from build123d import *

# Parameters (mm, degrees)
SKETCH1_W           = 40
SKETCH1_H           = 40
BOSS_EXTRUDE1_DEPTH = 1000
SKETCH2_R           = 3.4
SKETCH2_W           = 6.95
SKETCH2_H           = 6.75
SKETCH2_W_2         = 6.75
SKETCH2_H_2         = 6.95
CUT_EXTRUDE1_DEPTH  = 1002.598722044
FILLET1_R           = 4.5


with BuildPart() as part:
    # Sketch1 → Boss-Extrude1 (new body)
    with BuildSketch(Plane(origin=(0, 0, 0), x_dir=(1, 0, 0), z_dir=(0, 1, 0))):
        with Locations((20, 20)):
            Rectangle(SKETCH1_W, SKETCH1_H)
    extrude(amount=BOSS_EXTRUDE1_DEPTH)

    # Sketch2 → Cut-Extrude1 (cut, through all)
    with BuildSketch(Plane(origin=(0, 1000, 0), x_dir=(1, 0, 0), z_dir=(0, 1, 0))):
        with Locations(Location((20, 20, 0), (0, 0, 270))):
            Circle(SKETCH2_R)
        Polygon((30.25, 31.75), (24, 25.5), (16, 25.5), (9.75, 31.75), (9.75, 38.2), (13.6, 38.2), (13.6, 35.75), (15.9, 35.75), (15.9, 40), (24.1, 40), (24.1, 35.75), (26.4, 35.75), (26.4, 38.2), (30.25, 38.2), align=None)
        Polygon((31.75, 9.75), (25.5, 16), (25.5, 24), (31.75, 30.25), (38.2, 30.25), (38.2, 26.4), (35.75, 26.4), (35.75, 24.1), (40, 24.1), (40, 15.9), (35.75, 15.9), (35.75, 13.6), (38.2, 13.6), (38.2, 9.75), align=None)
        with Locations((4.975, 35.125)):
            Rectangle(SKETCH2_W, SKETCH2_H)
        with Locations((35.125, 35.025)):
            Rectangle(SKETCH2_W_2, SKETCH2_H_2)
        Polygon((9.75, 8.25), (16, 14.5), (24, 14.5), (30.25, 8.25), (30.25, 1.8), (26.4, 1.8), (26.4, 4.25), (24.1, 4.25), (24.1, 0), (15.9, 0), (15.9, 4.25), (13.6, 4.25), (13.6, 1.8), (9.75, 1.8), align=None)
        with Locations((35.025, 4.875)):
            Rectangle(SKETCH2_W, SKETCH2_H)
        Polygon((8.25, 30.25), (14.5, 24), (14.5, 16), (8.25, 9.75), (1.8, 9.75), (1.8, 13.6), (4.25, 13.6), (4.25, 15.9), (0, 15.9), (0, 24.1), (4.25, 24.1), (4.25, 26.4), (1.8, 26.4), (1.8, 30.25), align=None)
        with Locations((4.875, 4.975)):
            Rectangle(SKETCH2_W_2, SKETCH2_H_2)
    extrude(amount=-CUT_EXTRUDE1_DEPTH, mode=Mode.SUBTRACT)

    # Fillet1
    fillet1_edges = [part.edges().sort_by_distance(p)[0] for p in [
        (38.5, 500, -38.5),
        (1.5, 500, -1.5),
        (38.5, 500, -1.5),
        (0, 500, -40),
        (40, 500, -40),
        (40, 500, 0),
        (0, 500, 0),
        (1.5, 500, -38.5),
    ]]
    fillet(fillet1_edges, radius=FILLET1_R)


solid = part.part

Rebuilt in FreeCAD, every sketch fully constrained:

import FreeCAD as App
import Part
import Sketcher


def edges_at(feature, points):
    """Names of the edges that pass closest to the given points."""
    edges = feature.Shape.Edges
    near = lambda p: min(range(len(edges)), key=lambda i: edges[i].distToShape(Part.Vertex(*p))[0])
    return sorted({f"Edge{near(p) + 1}" for p in points})


def add_polygon(sketch, points):
    """Adds a closed chain of lines whose ends are joined by coincident constraints."""
    first, n = sketch.GeometryCount, len(points)
    for a, b in zip(points, points[1:] + points[:1]):
        sketch.addGeometry(Part.LineSegment(App.Vector(*a, 0), App.Vector(*b, 0)), False)
    for i in range(n):
        sketch.addConstraint(Sketcher.Constraint("Coincident", first + i, 2, first + (i + 1) % n, 1))

doc = App.newDocument("Part")
body = doc.addObject("PartDesign::Body", "Body")

# Sketch on XZ plane
sketch1 = body.newObject("Sketcher::SketchObject", "Sketch")
sketch1.AttachmentSupport = (doc.getObject("XZ_Plane"), [""])
sketch1.MapMode = "FlatFace"
add_polygon(sketch1, [(0, -40), (0, 0), (40, 0), (40, -40)])  # lines 0-3
sketch1.addConstraint([
    Sketcher.Constraint("Vertical", 0),
    Sketcher.Constraint("Horizontal", 1),
    Sketcher.Constraint("Vertical", 2),
    Sketcher.Constraint("Horizontal", 3),
    Sketcher.Constraint("Coincident", 0, 2, -1, 1),
    Sketcher.Constraint("Equal", 3, 0),
    Sketcher.Constraint("DistanceX", 1, 1, 1, 2, 40.0),
])
pad1 = body.newObject("PartDesign::Pad", "Pad")
pad1.Profile = sketch1
pad1.Length = 1000
pad1.Reversed = True

# Sketch on XZ plane
sketch2 = body.newObject("Sketcher::SketchObject", "Sketch001")
sketch2.AttachmentSupport = (doc.getObject("XZ_Plane"), [""])
sketch2.MapMode = "FlatFace"
sketch2.AttachmentOffset = App.Placement(App.Vector(0, 0, -1000), App.Rotation())
sketch2.addGeometry(Part.Circle(App.Vector(20, -20, 0), App.Vector(0, 0, 1), 3.4), False)  # 0
add_polygon(sketch2, [(24, -25.5), (30.25, -31.75), (30.25, -38.2), (26.4, -38.2), (26.4, -35.75), (24.1, -35.75), (24.1, -40), (15.9, -40), (15.9, -35.75), (13.6, -35.75), (13.6, -38.2), (9.75, -38.2), (9.75, -31.75), (16, -25.5)])  # lines 1-14
add_polygon(sketch2, [(25.5, -16), (31.75, -9.75), (38.2, -9.75), (38.2, -13.6), (35.75, -13.6), (35.75, -15.9), (40, -15.9), (40, -24.1), (35.75, -24.1), (35.75, -26.4), (38.2, -26.4), (38.2, -30.25), (31.75, -30.25), (25.5, -24)])  # lines 15-28
add_polygon(sketch2, [(1.5, -38.5), (1.5, -31.75), (8.45, -31.75), (8.45, -38.5)])  # lines 29-32
add_polygon(sketch2, [(31.75, -38.5), (31.75, -31.55), (38.5, -31.55), (38.5, -38.5)])  # lines 33-36
add_polygon(sketch2, [(16, -14.5), (9.75, -8.25), (9.75, -1.8), (13.6, -1.8), (13.6, -4.25), (15.9, -4.25), (15.9, 0), (24.1, 0), (24.1, -4.25), (26.4, -4.25), (26.4, -1.8), (30.25, -1.8), (30.25, -8.25), (24, -14.5)])  # lines 37-50
add_polygon(sketch2, [(31.55, -8.25), (31.55, -1.5), (38.5, -1.5), (38.5, -8.25)])  # lines 51-54
add_polygon(sketch2, [(14.5, -24), (8.25, -30.25), (1.8, -30.25), (1.8, -26.4), (4.25, -26.4), (4.25, -24.1), (0, -24.1), (0, -15.9), (4.25, -15.9), (4.25, -13.6), (1.8, -13.6), (1.8, -9.75), (8.25, -9.75), (14.5, -16)])  # lines 55-68
add_polygon(sketch2, [(1.5, -8.45), (1.5, -1.5), (8.25, -1.5), (8.25, -8.45)])  # lines 69-72
sketch2.addConstraint([
    Sketcher.Constraint("Vertical", 2),
    Sketcher.Constraint("Horizontal", 3),
    Sketcher.Constraint("Vertical", 4),
    Sketcher.Constraint("Horizontal", 5),
    Sketcher.Constraint("Vertical", 6),
    Sketcher.Constraint("Horizontal", 7),
    Sketcher.Constraint("Vertical", 8),
    Sketcher.Constraint("Horizontal", 9),
    Sketcher.Constraint("Vertical", 10),
    Sketcher.Constraint("Horizontal", 11),
    Sketcher.Constraint("Vertical", 12),
    Sketcher.Constraint("Horizontal", 14),
    Sketcher.Constraint("Horizontal", 16),
    Sketcher.Constraint("Vertical", 17),
    Sketcher.Constraint("Horizontal", 18),
    Sketcher.Constraint("Vertical", 19),
    Sketcher.Constraint("Horizontal", 20),
    Sketcher.Constraint("Vertical", 21),
    Sketcher.Constraint("Horizontal", 22),
    Sketcher.Constraint("Vertical", 23),
    Sketcher.Constraint("Horizontal", 24),
    Sketcher.Constraint("Vertical", 25),
    Sketcher.Constraint("Horizontal", 26),
    Sketcher.Constraint("Vertical", 28),
    Sketcher.Constraint("Vertical", 29),
    Sketcher.Constraint("Horizontal", 30),
    Sketcher.Constraint("Vertical", 31),
    Sketcher.Constraint("Horizontal", 32),
    Sketcher.Constraint("Vertical", 33),
    Sketcher.Constraint("Horizontal", 34),
    Sketcher.Constraint("Vertical", 35),
    Sketcher.Constraint("Horizontal", 36),
    Sketcher.Constraint("Vertical", 38),
    Sketcher.Constraint("Horizontal", 39),
    Sketcher.Constraint("Vertical", 40),
    Sketcher.Constraint("Horizontal", 41),
    Sketcher.Constraint("Vertical", 42),
    Sketcher.Constraint("Horizontal", 43),
    Sketcher.Constraint("Vertical", 44),
    Sketcher.Constraint("Horizontal", 45),
    Sketcher.Constraint("Vertical", 46),
    Sketcher.Constraint("Horizontal", 47),
    Sketcher.Constraint("Vertical", 48),
    Sketcher.Constraint("Horizontal", 50),
    Sketcher.Constraint("Vertical", 51),
    Sketcher.Constraint("Horizontal", 52),
    Sketcher.Constraint("Vertical", 53),
    Sketcher.Constraint("Horizontal", 54),
    Sketcher.Constraint("Horizontal", 56),
    Sketcher.Constraint("Vertical", 57),
    Sketcher.Constraint("Horizontal", 58),
    Sketcher.Constraint("Vertical", 59),
    Sketcher.Constraint("Horizontal", 60),
    Sketcher.Constraint("Vertical", 61),
    Sketcher.Constraint("Horizontal", 62),
    Sketcher.Constraint("Vertical", 63),
    Sketcher.Constraint("Horizontal", 64),
    Sketcher.Constraint("Vertical", 65),
    Sketcher.Constraint("Horizontal", 66),
    Sketcher.Constraint("Vertical", 68),
    Sketcher.Constraint("Vertical", 69),
    Sketcher.Constraint("Horizontal", 70),
    Sketcher.Constraint("Vertical", 71),
    Sketcher.Constraint("Horizontal", 72),
    Sketcher.Constraint("PointOnObject", 42, 2, -1),
    Sketcher.Constraint("PointOnObject", 60, 2, -2),
    Sketcher.Constraint("Perpendicular", 1, 13),
    Sketcher.Constraint("Parallel", 13, 15),
    Sketcher.Constraint("Perpendicular", 15, 27),
    Sketcher.Constraint("Parallel", 27, 37),
    Sketcher.Constraint("Perpendicular", 37, 49),
    Sketcher.Constraint("Parallel", 49, 55),
    Sketcher.Constraint("Perpendicular", 55, 67),
    Sketcher.Constraint("Horizontal", 5, 2, 8, 2),
    Sketcher.Constraint("Horizontal", 3, 2, 10, 2),
    Sketcher.Constraint("Horizontal", 1, 2, 12, 2),
    Sketcher.Constraint("Horizontal", 12, 2, 29, 2),
    Sketcher.Constraint("Horizontal", 32, 2, 35, 2),
    Sketcher.Constraint("Horizontal", 41, 2, 44, 2),
    Sketcher.Constraint("Horizontal", 39, 2, 46, 2),
    Sketcher.Constraint("Horizontal", 37, 2, 48, 2),
    Sketcher.Constraint("Horizontal", 48, 2, 53, 2),
    Sketcher.Constraint("Horizontal", 26, 2, 55, 2),
    Sketcher.Constraint("Horizontal", 24, 2, 57, 2),
    Sketcher.Constraint("Horizontal", 22, 2, 59, 2),
    Sketcher.Constraint("Horizontal", 20, 2, 61, 2),
    Sketcher.Constraint("Horizontal", 18, 2, 63, 2),
    Sketcher.Constraint("Horizontal", 16, 2, 65, 2),
    Sketcher.Constraint("Horizontal", 28, 2, 67, 2),
    Sketcher.Constraint("Horizontal", 27, 2, 68, 2),
    Sketcher.Constraint("Horizontal", 52, 2, 69, 2),
    Sketcher.Constraint("Vertical", 19, 2, 22, 2),
    Sketcher.Constraint("Vertical", 17, 2, 24, 2),
    Sketcher.Constraint("Vertical", 15, 2, 26, 2),
    Sketcher.Constraint("Vertical", 26, 2, 33, 2),
    Sketcher.Constraint("Vertical", 12, 2, 37, 2),
    Sketcher.Constraint("Vertical", 10, 2, 39, 2),
    Sketcher.Constraint("Vertical", 8, 2, 41, 2),
    Sketcher.Constraint("Vertical", 6, 2, 43, 2),
    Sketcher.Constraint("Vertical", 4, 2, 45, 2),
    Sketcher.Constraint("Vertical", 2, 2, 47, 2),
    Sketcher.Constraint("Vertical", 14, 2, 49, 2),
    Sketcher.Constraint("Vertical", 13, 2, 50, 2),
    Sketcher.Constraint("Vertical", 35, 2, 52, 2),
    Sketcher.Constraint("Vertical", 59, 2, 62, 2),
    Sketcher.Constraint("Vertical", 57, 2, 64, 2),
    Sketcher.Constraint("Vertical", 32, 2, 69, 2),
    Sketcher.Constraint("Vertical", 66, 2, 70, 2),
    Sketcher.Constraint("Equal", 5, 9),
    Sketcher.Constraint("Equal", 3, 11),
    Sketcher.Constraint("Equal", 32, 52),
    Sketcher.Constraint("Equal", 26, 56),
    Sketcher.Constraint("Equal", 24, 58),
    Sketcher.Constraint("Equal", 22, 60),
    Sketcher.Constraint("Equal", 36, 70),
    Sketcher.Constraint("Equal", 66, 2),
    Sketcher.Constraint("Equal", 64, 4),
    Sketcher.Constraint("Equal", 62, 6),
    Sketcher.Constraint("Equal", 47, 17),
    Sketcher.Constraint("Equal", 45, 19),
    Sketcher.Constraint("Equal", 43, 21),
    Sketcher.Constraint("Equal", 19, 23),
    Sketcher.Constraint("Equal", 17, 25),
    Sketcher.Constraint("Equal", 50, 28),
    Sketcher.Constraint("Equal", 72, 29),
    Sketcher.Constraint("Equal", 54, 33),
    Sketcher.Constraint("Equal", 12, 38),
    Sketcher.Constraint("Equal", 10, 40),
    Sketcher.Constraint("Equal", 8, 42),
    Sketcher.Constraint("Equal", 31, 51),
    Sketcher.Constraint("Equal", 35, 69),
    Sketcher.Constraint("Diameter", 0, 6.8),
    Sketcher.Constraint("DistanceX", 14, 1, 14, 2, 8.0),
    Sketcher.Constraint("DistanceX", 5, 2, 5, 1, 2.3),
    Sketcher.Constraint("DistanceX", 7, 2, 7, 1, 8.2),
    Sketcher.Constraint("DistanceX", -1, 1, 0, 3, 20.0),
    Sketcher.Constraint("DistanceY", 0, 3, -1, 1, 20.0),
    Sketcher.Constraint("DistanceY", 6, 2, -1, 1, 40.0),
    Sketcher.Constraint("DistanceX", -1, 1, 13, 2, 16.0),
    Sketcher.Constraint("DistanceX", -1, 1, 20, 2, 40.0),
    Sketcher.Constraint("DistanceY", 27, 2, -1, 1, 24.0),
    Sketcher.Constraint("DistanceX", 3, 2, 3, 1, 3.85),
    Sketcher.Constraint("DistanceX", 16, 1, 16, 2, 6.45),
    Sketcher.Constraint("DistanceX", 18, 2, 18, 1, 2.45),
    Sketcher.Constraint("DistanceX", 20, 1, 20, 2, 4.25),
    Sketcher.Constraint("DistanceX", 30, 1, 30, 2, 6.95),
    Sketcher.Constraint("DistanceX", 34, 1, 34, 2, 6.75),
])
pocket1 = body.newObject("PartDesign::Pocket", "Pocket")
pocket1.Profile = sketch2
pocket1.Type = "ThroughAll"
pocket1.Reversed = True
doc.recompute()

fillet = body.newObject("PartDesign::Fillet", "Fillet")
fillet.Base = (pocket1, edges_at(pocket1, [
    (38.5, 500, -38.5),
    (1.5, 500, -1.5),
    (38.5, 500, -1.5),
    (0, 500, -40),
    (40, 500, -40),
    (40, 500, 0),
    (0, 500, 0),
    (1.5, 500, -38.5),
]))
fillet.Radius = 4.5

doc.recompute()
